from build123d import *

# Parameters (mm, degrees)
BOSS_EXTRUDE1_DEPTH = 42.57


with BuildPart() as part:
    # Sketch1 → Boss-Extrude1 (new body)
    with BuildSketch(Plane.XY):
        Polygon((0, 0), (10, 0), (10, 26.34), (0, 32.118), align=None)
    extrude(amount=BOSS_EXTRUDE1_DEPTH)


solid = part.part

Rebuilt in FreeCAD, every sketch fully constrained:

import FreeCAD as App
import Part
import Sketcher

doc = App.newDocument("Part")
params = doc.addObject("Spreadsheet::Sheet", "Params")
for row, (alias, value) in enumerate([
    ("sketch1_width", "10 mm"),
    ("sketch1_height", "26.34 mm"),
    ("pad1_length", "42.57 mm"),
], start=1):
    params.set(f"A{row}", alias)
    params.set(f"B{row}", "=" + value)
    params.setAlias(f"B{row}", alias)

body = doc.addObject("PartDesign::Body", "Body")

# Sketch on XY plane
sketch1 = doc.addObject("Sketcher::SketchObject", "Sketch")
body.addObject(sketch1)
sketch1.AttachmentSupport = (doc.XY_Plane, [""])
sketch1.MapMode = "FlatFace"
sketch1.addGeometry(Part.LineSegment(App.Vector(0, 0, 0), App.Vector(10, 0, 0)), False)
sketch1.addGeometry(Part.LineSegment(App.Vector(10, 0, 0), App.Vector(10, 26.34, 0)), False)
sketch1.addGeometry(Part.LineSegment(App.Vector(10, 26.34, 0), App.Vector(0, 32.118, 0)), False)
sketch1.addGeometry(Part.LineSegment(App.Vector(0, 32.118, 0), App.Vector(0, 0, 0)), False)
sketch1.addConstraint(Sketcher.Constraint("Coincident", 0, 2, 1, 1))
sketch1.addConstraint(Sketcher.Constraint("Coincident", 1, 2, 2, 1))
sketch1.addConstraint(Sketcher.Constraint("Coincident", 2, 2, 3, 1))
sketch1.addConstraint(Sketcher.Constraint("Coincident", 3, 2, 0, 1))
sketch1.addConstraint(Sketcher.Constraint("Horizontal", 0))
sketch1.addConstraint(Sketcher.Constraint("Vertical", 1))
sketch1.addConstraint(Sketcher.Constraint("Vertical", 3))
sketch1.addConstraint(Sketcher.Constraint("Coincident", 3, 2, -1, 1))
sketch1.addConstraint(Sketcher.Constraint("DistanceX", 0, 1, 0, 2, 10.0))
sketch1.addConstraint(Sketcher.Constraint("DistanceY", 1, 1, 1, 2, 26.34))
sketch1.addConstraint(Sketcher.Constraint("DistanceY", 3, 2, 3, 1, 32.118))
sketch1.setExpression("Constraints[8]", "Params.sketch1_width")
sketch1.setExpression("Constraints[9]", "Params.sketch1_height")
pad1 = doc.addObject("PartDesign::Pad", "Pad")
body.addObject(pad1)
pad1.Profile = sketch1
pad1.setExpression("Length", "Params.pad1_length")

doc.recompute()
